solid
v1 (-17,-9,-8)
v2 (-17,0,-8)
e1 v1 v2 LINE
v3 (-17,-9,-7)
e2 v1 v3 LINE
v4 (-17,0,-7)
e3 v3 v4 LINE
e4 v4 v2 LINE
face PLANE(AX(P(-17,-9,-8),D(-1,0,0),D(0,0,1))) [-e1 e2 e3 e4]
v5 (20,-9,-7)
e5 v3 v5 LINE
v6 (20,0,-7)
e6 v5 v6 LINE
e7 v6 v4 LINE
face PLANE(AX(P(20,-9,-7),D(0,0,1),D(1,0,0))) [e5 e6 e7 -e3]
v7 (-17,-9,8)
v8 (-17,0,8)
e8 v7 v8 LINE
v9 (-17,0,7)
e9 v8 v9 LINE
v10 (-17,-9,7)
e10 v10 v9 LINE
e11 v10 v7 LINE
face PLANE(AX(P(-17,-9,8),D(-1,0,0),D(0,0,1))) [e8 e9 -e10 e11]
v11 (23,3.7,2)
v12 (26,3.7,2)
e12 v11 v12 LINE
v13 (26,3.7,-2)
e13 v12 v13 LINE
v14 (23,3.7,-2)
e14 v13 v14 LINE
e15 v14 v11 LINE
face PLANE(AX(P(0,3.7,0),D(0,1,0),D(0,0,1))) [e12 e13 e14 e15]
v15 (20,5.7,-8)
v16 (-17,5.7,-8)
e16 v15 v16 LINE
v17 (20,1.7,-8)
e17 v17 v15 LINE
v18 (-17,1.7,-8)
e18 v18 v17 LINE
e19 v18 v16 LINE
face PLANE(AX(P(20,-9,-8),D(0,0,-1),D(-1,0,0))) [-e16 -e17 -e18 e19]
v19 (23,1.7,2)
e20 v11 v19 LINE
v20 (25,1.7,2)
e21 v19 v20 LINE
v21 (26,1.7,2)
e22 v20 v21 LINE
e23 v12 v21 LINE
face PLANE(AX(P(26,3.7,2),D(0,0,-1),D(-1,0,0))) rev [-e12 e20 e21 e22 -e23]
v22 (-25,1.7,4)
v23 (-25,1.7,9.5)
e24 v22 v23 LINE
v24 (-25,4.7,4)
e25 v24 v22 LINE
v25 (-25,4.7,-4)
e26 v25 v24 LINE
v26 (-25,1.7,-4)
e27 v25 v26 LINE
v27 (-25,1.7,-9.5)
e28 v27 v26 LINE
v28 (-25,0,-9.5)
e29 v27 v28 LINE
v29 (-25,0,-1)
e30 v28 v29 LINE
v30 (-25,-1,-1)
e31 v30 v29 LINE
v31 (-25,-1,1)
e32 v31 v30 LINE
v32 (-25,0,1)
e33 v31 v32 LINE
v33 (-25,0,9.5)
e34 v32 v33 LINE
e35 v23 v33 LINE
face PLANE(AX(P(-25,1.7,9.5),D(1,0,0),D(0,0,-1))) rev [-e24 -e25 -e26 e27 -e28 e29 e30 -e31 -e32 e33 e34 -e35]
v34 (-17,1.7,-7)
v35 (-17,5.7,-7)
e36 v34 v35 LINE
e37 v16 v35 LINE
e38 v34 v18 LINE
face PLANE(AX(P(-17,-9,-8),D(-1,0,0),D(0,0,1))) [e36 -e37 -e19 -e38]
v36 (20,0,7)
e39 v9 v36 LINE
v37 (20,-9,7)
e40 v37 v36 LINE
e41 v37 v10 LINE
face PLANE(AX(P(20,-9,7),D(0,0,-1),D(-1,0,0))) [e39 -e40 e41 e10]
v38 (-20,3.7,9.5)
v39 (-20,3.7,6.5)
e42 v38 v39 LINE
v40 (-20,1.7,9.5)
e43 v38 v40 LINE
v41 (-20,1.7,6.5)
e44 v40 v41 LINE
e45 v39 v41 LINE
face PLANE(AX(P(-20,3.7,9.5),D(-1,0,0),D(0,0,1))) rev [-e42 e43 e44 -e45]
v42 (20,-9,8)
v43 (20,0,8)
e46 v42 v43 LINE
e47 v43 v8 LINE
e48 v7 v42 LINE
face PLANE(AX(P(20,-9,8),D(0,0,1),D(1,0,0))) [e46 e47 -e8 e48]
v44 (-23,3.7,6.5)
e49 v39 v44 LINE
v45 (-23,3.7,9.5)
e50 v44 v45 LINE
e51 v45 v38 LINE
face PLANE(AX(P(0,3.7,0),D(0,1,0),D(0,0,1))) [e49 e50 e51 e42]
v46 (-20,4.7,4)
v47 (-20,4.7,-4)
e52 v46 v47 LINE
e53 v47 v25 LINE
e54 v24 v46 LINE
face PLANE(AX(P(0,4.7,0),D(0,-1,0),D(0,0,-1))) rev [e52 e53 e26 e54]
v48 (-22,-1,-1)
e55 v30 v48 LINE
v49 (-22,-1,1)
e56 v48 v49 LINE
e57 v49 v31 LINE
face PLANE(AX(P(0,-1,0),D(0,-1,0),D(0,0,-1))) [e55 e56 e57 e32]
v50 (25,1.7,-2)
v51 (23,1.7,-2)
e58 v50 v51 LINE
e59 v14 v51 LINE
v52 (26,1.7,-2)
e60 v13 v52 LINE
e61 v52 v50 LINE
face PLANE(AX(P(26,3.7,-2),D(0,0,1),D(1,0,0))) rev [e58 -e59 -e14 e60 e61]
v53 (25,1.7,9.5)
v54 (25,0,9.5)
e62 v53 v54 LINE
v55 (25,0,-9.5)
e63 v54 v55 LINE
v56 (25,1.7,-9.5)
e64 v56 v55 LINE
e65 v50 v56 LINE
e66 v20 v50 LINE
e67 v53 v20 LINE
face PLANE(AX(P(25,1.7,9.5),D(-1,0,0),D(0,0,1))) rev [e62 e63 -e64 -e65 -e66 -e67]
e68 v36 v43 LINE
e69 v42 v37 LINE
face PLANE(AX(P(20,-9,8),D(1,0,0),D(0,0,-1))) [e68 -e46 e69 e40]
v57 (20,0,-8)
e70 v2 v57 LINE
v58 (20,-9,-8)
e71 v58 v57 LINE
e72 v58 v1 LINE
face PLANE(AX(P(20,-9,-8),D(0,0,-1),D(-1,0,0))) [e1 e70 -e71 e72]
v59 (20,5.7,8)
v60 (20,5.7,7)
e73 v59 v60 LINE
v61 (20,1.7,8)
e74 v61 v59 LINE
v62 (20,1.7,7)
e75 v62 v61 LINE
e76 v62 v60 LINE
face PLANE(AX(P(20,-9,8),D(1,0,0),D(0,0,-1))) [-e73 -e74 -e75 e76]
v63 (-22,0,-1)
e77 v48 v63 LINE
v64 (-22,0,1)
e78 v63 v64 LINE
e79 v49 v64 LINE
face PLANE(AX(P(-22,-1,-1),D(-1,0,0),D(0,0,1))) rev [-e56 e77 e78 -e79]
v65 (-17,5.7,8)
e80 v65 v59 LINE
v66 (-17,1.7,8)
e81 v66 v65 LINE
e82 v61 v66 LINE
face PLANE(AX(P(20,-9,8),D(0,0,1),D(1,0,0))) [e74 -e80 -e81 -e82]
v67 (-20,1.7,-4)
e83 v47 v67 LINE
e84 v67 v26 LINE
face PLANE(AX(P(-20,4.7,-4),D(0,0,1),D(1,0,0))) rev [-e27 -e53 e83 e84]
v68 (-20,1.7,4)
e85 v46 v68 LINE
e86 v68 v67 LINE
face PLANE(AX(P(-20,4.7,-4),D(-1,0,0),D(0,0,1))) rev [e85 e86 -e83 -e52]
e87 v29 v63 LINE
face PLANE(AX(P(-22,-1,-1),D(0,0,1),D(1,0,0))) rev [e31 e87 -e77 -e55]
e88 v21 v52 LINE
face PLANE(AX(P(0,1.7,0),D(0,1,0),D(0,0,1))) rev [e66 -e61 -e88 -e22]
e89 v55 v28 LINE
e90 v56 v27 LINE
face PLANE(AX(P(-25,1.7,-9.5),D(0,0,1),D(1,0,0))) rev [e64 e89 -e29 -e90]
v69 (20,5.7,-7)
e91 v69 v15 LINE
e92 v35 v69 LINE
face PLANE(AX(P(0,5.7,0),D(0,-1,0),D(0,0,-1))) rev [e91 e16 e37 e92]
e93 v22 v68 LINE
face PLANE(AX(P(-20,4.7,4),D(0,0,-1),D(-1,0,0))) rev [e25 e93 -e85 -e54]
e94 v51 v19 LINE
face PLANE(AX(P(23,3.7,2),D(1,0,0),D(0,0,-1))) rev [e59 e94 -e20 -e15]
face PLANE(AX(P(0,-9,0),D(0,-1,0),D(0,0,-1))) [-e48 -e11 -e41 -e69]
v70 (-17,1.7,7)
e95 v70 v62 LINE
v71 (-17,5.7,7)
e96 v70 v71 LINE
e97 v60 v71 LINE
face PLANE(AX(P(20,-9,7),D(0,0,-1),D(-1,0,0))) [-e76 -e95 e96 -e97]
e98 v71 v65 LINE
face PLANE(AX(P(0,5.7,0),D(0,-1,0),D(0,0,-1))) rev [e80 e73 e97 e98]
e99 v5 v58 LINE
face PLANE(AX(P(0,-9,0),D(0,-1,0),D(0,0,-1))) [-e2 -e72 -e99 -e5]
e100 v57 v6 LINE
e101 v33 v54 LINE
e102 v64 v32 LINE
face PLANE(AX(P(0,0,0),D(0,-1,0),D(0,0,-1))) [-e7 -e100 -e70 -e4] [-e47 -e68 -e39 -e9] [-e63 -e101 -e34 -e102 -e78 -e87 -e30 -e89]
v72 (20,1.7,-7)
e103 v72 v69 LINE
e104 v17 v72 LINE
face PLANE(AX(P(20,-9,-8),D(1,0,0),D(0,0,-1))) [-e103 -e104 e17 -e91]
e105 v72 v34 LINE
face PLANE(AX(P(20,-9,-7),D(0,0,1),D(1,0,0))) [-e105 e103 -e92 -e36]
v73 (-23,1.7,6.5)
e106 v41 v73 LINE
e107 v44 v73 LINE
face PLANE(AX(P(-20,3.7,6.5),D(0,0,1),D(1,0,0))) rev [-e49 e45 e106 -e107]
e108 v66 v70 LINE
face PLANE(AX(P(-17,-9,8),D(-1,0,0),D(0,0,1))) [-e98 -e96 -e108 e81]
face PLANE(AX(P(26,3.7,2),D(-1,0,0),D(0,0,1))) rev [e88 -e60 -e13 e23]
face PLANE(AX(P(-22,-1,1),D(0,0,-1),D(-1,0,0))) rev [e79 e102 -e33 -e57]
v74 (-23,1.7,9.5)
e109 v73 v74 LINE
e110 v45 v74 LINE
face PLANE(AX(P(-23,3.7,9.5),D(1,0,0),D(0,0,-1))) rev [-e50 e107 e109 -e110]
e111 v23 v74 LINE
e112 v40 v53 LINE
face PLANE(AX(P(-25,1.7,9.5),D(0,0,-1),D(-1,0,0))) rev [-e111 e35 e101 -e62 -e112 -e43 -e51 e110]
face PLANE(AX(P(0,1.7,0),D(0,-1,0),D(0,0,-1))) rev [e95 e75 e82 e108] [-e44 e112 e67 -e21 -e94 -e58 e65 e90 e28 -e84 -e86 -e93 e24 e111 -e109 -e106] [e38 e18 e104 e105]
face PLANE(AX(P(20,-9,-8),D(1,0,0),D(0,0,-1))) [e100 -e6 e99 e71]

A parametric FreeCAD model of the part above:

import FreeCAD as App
import Part
import Sketcher
Q = App.Units.Quantity


def add_polygon(sketch, points):
    """Adds a closed chain of lines whose ends are joined by coincident constraints."""
    first, n = sketch.GeometryCount, len(points)
    for a, b in zip(points, points[1:] + points[:1]):
        sketch.addGeometry(Part.LineSegment(App.Vector(*a, 0), App.Vector(*b, 0)), False)
    for i in range(n):
        sketch.addConstraint(Sketcher.Constraint("Coincident", first + i, 2, first + (i + 1) % n, 1))

doc = App.newDocument("Part")
body = doc.addObject("PartDesign::Body", "Body")

# Sketch on XZ plane
sketch1 = body.newObject("Sketcher::SketchObject", "Sketch")
sketch1.AttachmentSupport = (doc.getObject("XZ_Plane"), [""])
sketch1.MapMode = "FlatFace"
add_polygon(sketch1, [(-25, -10), (-25, 10), (25, 10), (25, -10)])  # lines 0-3
sketch1.addConstraint([
    Sketcher.Constraint("Vertical", 0),
    Sketcher.Constraint("Horizontal", 1),
    Sketcher.Constraint("Vertical", 2),
    Sketcher.Constraint("Horizontal", 3),
    Sketcher.Constraint("Symmetric", 0, 2, 2, 2, -1, 1),
    Sketcher.Constraint("DistanceX", 1, 1, 1, 2, Q("50 mm")),
    Sketcher.Constraint("DistanceY", 0, 1, 0, 2, Q("19 mm")),
])
pad1 = body.newObject("PartDesign::Pad", "Pad")
pad1.Profile = sketch1
pad1.Length = 1.7
pad1.Reversed = True

# Sketch on XZ plane
sketch2 = body.newObject("Sketcher::SketchObject", "Sketch001")
sketch2.AttachmentSupport = (doc.getObject("XZ_Plane"), [""])
sketch2.MapMode = "FlatFace"
sketch2.AttachmentOffset = App.Placement(App.Vector(0, 0, -1.7), App.Rotation())
add_polygon(sketch2, [(-25, -4), (-25, 4), (-20, 4), (-20, -4)])  # lines 0-3
sketch2.addConstraint([
    Sketcher.Constraint("Vertical", 0),
    Sketcher.Constraint("Horizontal", 1),
    Sketcher.Constraint("Vertical", 2),
    Sketcher.Constraint("Horizontal", 3),
    Sketcher.Constraint("DistanceX", 1, 1, 1, 2, Q("5 mm")),
    Sketcher.Constraint("DistanceY", 0, 1, 0, 2, Q("8 mm")),
    Sketcher.Constraint("DistanceX", 0, 2, -1, 1, Q("25 mm")),
    Sketcher.Constraint("DistanceY", -1, 1, 0, 2, Q("4 mm")),
])
pad2 = body.newObject("PartDesign::Pad", "Pad001")
pad2.Profile = sketch2
pad2.Length = 3
pad2.Reversed = True

# Sketch on XZ plane
sketch3 = body.newObject("Sketcher::SketchObject", "Sketch002")
sketch3.AttachmentSupport = (doc.getObject("XZ_Plane"), [""])
sketch3.MapMode = "FlatFace"
sketch3.AttachmentOffset = App.Placement(App.Vector(0, 0, -1.7), App.Rotation())
add_polygon(sketch3, [(-23, 6.5), (-23, 9.5), (-20, 9.5), (-20, 6.5)])  # lines 0-3
sketch3.addConstraint([
    Sketcher.Constraint("Vertical", 0),
    Sketcher.Constraint("Horizontal", 1),
    Sketcher.Constraint("Vertical", 2),
    Sketcher.Constraint("Horizontal", 3),
    Sketcher.Constraint("Equal", 3, 0),
    Sketcher.Constraint("DistanceX", 1, 1, 1, 2, Q("3 mm")),
    Sketcher.Constraint("DistanceX", 0, 2, -1, 1, Q("23 mm")),
    Sketcher.Constraint("DistanceY", -1, 1, 0, 2, Q("9.5 mm")),
])
pad3 = body.newObject("PartDesign::Pad", "Pad002")
pad3.Profile = sketch3
pad3.Length = 2
pad3.Reversed = True

# Sketch on XZ plane
sketch4 = body.newObject("Sketcher::SketchObject", "Sketch003")
sketch4.AttachmentSupport = (doc.getObject("XZ_Plane"), [""])
sketch4.MapMode = "FlatFace"
sketch4.AttachmentOffset = App.Placement(App.Vector(0, 0, -1.7), App.Rotation())
add_polygon(sketch4, [(-17, -8), (-17, -7), (20, -7), (20, -8)])  # lines 0-3
add_polygon(sketch4, [(-17, 7), (-17, 8), (20, 8), (20, 7)])  # lines 4-7
sketch4.addConstraint([
    Sketcher.Constraint("Vertical", 0),
    Sketcher.Constraint("Horizontal", 1),
    Sketcher.Constraint("Vertical", 2),
    Sketcher.Constraint("Horizontal", 3),
    Sketcher.Constraint("Vertical", 4),
    Sketcher.Constraint("Horizontal", 5),
    Sketcher.Constraint("Vertical", 6),
    Sketcher.Constraint("Horizontal", 7),
    Sketcher.Constraint("Symmetric", 3, 2, 4, 2, -1),
    Sketcher.Constraint("Symmetric", 1, 2, 6, 2, -1),
    Sketcher.Constraint("DistanceX", 1, 1, 1, 2, Q("37 mm")),
    Sketcher.Constraint("DistanceY", 0, 1, 0, 2, Q("1 mm")),
    Sketcher.Constraint("DistanceX", 0, 2, -1, 1, Q("17 mm")),
    Sketcher.Constraint("DistanceY", 0, 2, -1, 1, Q("7 mm")),
])
pad4 = body.newObject("PartDesign::Pad", "Pad003")
pad4.Profile = sketch4
pad4.Type = "TwoLengths"
pad4.Length = 4
pad4.Length2 = 10.7
pad4.Reversed = True

# Sketch on XZ plane
sketch5 = body.newObject("Sketcher::SketchObject", "Sketch004")
sketch5.AttachmentSupport = (doc.getObject("XZ_Plane"), [""])
sketch5.MapMode = "FlatFace"
add_polygon(sketch5, [(-25, 1), (-25, -1), (-22, -1), (-22, 1)])  # lines 0-3
sketch5.addConstraint([
    Sketcher.Constraint("Vertical", 0),
    Sketcher.Constraint("Horizontal", 1),
    Sketcher.Constraint("Vertical", 2),
    Sketcher.Constraint("Horizontal", 3),
    Sketcher.Constraint("DistanceX", 1, 1, 1, 2, Q("3 mm")),
    Sketcher.Constraint("DistanceY", 0, 2, 0, 1, Q("2 mm")),
    Sketcher.Constraint("DistanceX", 0, 2, -1, 1, Q("25 mm")),
    Sketcher.Constraint("DistanceY", 0, 2, -1, 1, Q("1 mm")),
])
pad5 = body.newObject("PartDesign::Pad", "Pad004")
pad5.Profile = sketch5
pad5.Length = 1

# Sketch on XZ plane
sketch6 = body.newObject("Sketcher::SketchObject", "Sketch005")
sketch6.AttachmentSupport = (doc.getObject("XZ_Plane"), [""])
sketch6.MapMode = "FlatFace"
sketch6.AttachmentOffset = App.Placement(App.Vector(0, 0, -1.7), App.Rotation())
add_polygon(sketch6, [(23, -2), (23, 2), (26, 2), (26, -2)])  # lines 0-3
sketch6.addConstraint([
    Sketcher.Constraint("Vertical", 0),
    Sketcher.Constraint("Horizontal", 1),
    Sketcher.Constraint("Vertical", 2),
    Sketcher.Constraint("Horizontal", 3),
    Sketcher.Constraint("DistanceX", 1, 1, 1, 2, Q("3 mm")),
    Sketcher.Constraint("DistanceY", 0, 1, 0, 2, Q("4 mm")),
    Sketcher.Constraint("DistanceX", -1, 1, 0, 2, Q("23 mm")),
    Sketcher.Constraint("DistanceY", -1, 1, 0, 2, Q("2 mm")),
])
pad6 = body.newObject("PartDesign::Pad", "Pad005")
pad6.Profile = sketch6
pad6.Length = 2
pad6.Reversed = True

doc.recompute()
